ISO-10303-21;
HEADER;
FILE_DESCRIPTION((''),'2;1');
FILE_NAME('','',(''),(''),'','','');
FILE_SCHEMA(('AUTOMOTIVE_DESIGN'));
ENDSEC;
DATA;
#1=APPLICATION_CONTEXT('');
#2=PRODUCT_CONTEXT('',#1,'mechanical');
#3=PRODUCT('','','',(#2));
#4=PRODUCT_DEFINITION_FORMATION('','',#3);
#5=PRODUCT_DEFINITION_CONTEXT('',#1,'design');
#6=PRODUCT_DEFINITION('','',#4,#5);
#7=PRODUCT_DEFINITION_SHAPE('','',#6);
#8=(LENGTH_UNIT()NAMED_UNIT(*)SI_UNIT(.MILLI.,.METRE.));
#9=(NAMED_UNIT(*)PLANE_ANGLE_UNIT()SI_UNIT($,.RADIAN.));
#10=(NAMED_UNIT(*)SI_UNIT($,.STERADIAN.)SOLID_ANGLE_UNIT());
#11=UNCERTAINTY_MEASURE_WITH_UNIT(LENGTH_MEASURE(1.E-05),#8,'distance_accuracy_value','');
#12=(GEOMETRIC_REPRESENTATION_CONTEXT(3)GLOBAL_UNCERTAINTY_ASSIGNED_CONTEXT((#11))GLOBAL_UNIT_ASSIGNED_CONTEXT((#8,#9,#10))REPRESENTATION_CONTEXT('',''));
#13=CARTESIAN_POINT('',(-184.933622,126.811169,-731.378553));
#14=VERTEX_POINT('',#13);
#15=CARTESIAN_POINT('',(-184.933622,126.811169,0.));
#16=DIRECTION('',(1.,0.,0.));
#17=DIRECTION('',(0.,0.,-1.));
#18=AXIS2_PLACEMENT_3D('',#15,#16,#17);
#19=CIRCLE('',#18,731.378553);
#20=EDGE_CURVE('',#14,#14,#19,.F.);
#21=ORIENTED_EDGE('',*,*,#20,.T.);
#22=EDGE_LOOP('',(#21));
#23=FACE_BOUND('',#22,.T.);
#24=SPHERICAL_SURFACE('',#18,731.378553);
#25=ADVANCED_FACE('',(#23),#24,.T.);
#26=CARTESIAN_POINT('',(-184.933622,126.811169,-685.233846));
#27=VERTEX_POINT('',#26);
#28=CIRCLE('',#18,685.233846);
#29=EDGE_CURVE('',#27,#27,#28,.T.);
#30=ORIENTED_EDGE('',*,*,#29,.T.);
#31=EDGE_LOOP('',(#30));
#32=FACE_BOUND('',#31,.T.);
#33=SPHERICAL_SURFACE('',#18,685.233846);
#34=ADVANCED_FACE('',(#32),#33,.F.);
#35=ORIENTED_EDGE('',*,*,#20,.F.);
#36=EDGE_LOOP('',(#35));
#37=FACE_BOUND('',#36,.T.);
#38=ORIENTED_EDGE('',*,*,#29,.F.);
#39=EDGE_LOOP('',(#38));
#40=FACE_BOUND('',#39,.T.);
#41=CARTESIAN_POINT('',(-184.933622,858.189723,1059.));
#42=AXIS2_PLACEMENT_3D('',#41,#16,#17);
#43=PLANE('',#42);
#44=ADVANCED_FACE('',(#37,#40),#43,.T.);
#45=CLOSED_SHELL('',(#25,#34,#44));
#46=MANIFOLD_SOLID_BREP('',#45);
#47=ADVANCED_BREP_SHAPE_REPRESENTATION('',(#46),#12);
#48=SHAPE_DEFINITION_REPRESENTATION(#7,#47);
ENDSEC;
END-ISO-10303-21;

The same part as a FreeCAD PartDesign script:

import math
import FreeCAD as App
import Part
import Sketcher

V = App.Vector


def add_polygon(sketch, points):
    """Adds a closed chain of lines whose ends are joined by coincident constraints."""
    first, n = sketch.GeometryCount, len(points)
    for a, b in zip(points, points[1:] + points[:1]):
        sketch.addGeometry(Part.LineSegment(App.Vector(*a, 0), App.Vector(*b, 0)), False)
    for i in range(n):
        sketch.addConstraint(Sketcher.Constraint("Coincident", first + i, 2, first + (i + 1) % n, 1))

doc = App.newDocument("Part")
body = doc.addObject("PartDesign::Body", "Body")

# Sketch on XY plane
sketch1 = doc.addObject("Sketcher::SketchObject", "Sketch")
body.addObject(sketch1)
sketch1.AttachmentSupport = (doc.XY_Plane, [""])
sketch1.MapMode = "FlatFace"
sketch1.addGeometry([
    Part.LineSegment(V(-184.933622, 812.045015, 0), V(-184.933622, 858.189723, 0)),
    Part.ArcOfCircle(Part.Circle(V(-184.933622, 126.811169, 0), V(0, 0, 1), 731.378553), math.radians(90), math.radians(270)),
    Part.LineSegment(V(-184.933622, -604.567384, 0), V(-184.933622, -558.422676, 0)),
    Part.ArcOfCircle(Part.Circle(V(-184.933622, 126.811169, 0), V(0, 0, 1), 685.233846), math.radians(90), math.radians(270)),
], False)
sketch1.addGeometry(Part.LineSegment(V(-184.933622, 858.189723, 0), V(-184.933622, -604.567384, 0)), True)  # axis
sketch1.addConstraint([
    Sketcher.Constraint("Coincident", 0, 2, 1, 1),
    Sketcher.Constraint("Coincident", 1, 2, 2, 1),
    Sketcher.Constraint("Coincident", 2, 2, 3, 2),
    Sketcher.Constraint("Coincident", 3, 1, 0, 1),
    Sketcher.Constraint("Vertical", 0),
    Sketcher.Constraint("Vertical", 2),
    Sketcher.Constraint("Vertical", 4),
    Sketcher.Constraint("Coincident", 3, 3, 1, 3),
    Sketcher.Constraint("Coincident", 4, 1, 0, 2),
    Sketcher.Constraint("Vertical", 3, 3, 0, 2),
    Sketcher.Constraint("Radius", 1, 731.378553),
    Sketcher.Constraint("Radius", 3, 685.233846),
    Sketcher.Constraint("DistanceY", 4, 2, 3, 1, 1416.612399),
    Sketcher.Constraint("DistanceX", 1, 3, -1, 1, 184.933622),
    Sketcher.Constraint("DistanceY", -1, 1, 1, 3, 126.811169),
    Sketcher.Constraint("DistanceX", 2, 2, -1, 1, 184.933622),
])
revolution = doc.addObject("PartDesign::Revolution", "Revolution")
body.addObject(revolution)
revolution.Profile = sketch1
revolution.ReferenceAxis = (sketch1, ["Axis0"])
revolution.Angle = 360

# Sketch on XY plane
sketch2 = doc.addObject("Sketcher::SketchObject", "Sketch001")
body.addObject(sketch2)
sketch2.AttachmentSupport = (doc.XY_Plane, [""])
sketch2.MapMode = "FlatFace"
add_polygon(sketch2, [(-184.933622, 858.189723), (-184.933622, -705.438789), (601.952607, -705.438789), (601.952607, 858.189723)])  # lines 0-3
sketch2.addConstraint([
    Sketcher.Constraint("Vertical", 0),
    Sketcher.Constraint("Horizontal", 1),
    Sketcher.Constraint("Vertical", 2),
    Sketcher.Constraint("Horizontal", 3),
    Sketcher.Constraint("DistanceX", 1, 1, 1, 2, 786.886229),
    Sketcher.Constraint("DistanceY", 0, 2, 0, 1, 1563.628512),
    Sketcher.Constraint("DistanceX", 0, 2, -1, 1, 184.933622),
    Sketcher.Constraint("DistanceY", 0, 2, -1, 1, 705.438789),
])
pocket1 = doc.addObject("PartDesign::Pocket", "Pocket")
body.addObject(pocket1)
pocket1.Profile = sketch2
pocket1.Type = "ThroughAll"
pocket1.Midplane = True

doc.recompute()
